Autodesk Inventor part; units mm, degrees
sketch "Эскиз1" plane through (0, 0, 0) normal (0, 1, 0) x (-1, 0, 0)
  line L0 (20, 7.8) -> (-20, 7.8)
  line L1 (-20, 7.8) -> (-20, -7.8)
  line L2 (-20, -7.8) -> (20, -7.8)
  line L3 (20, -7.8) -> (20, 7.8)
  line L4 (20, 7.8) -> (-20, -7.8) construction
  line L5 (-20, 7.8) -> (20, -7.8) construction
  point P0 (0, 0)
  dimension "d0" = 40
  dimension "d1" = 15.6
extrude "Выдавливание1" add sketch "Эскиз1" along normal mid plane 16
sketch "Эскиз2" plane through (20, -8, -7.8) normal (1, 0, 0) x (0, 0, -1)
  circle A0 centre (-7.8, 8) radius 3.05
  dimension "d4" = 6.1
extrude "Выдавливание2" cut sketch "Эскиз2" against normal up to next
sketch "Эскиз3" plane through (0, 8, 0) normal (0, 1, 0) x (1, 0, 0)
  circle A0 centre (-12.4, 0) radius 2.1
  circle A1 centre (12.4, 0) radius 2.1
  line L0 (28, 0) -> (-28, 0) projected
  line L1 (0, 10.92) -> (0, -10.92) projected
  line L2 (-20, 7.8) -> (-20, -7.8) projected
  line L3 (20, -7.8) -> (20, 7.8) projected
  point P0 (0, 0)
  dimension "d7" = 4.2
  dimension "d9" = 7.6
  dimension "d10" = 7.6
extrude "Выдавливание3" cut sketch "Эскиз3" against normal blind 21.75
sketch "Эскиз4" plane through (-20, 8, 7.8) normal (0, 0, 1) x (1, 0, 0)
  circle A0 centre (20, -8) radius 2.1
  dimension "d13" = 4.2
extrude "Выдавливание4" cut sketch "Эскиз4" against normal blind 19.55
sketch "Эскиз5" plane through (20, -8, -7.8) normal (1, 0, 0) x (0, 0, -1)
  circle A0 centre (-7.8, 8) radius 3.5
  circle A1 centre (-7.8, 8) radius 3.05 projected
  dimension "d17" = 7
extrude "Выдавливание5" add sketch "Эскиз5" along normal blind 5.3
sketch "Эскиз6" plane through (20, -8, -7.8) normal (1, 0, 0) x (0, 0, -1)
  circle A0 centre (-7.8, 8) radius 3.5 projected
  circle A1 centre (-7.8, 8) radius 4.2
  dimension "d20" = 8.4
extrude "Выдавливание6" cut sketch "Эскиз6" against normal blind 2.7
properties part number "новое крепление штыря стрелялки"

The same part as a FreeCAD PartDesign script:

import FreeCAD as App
import Part
import Sketcher
from FreeCAD import Vector
Q = App.Units.Quantity

doc = App.newDocument("Part")
params = doc.addObject("Spreadsheet::Sheet", "Params")
for row, (alias, value) in enumerate([
    ("sketch1_width", "40 mm"),
    ("sketch1_height", "15.6 mm"),
    ("pad1_length", "16 mm"),
    ("sketch2_diameter", "6.1 mm"),
    ("sketch3_diameter", "4.2 mm"),
    ("pocket2_length", "21.75 mm"),
    ("sketch4_diameter", "4.2 mm"),
    ("pocket3_length", "19.55 mm"),
    ("sketch5_diameter", "7 mm"),
    ("sketch5_diameter2", "6.1 mm"),
    ("pad2_length", "5.3 mm"),
    ("sketch6_diameter", "8.4 mm"),
    ("sketch6_diameter2", "7 mm"),
    ("pocket4_length", "2.7 mm"),
], start=1):
    params.set(f"A{row}", alias)
    params.set(f"B{row}", "=" + value)
    params.setAlias(f"B{row}", alias)

body = doc.addObject("PartDesign::Body", "Body")

sketch1 = body.newObject("Sketcher::SketchObject", "Sketch")
sketch1.AttachmentSupport = (doc.getObject("XZ_Plane"), [""])
sketch1.MapMode = "FlatFace"
sketch1.addGeometry(Part.LineSegment(Vector(-20, -7.8, 0), Vector(-20, 7.8, 0)), False)
sketch1.addGeometry(Part.LineSegment(Vector(-20, 7.8, 0), Vector(20, 7.8, 0)), False)
sketch1.addGeometry(Part.LineSegment(Vector(20, 7.8, 0), Vector(20, -7.8, 0)), False)
sketch1.addGeometry(Part.LineSegment(Vector(20, -7.8, 0), Vector(-20, -7.8, 0)), False)
sketch1.addConstraint(Sketcher.Constraint("Coincident", 0, 2, 1, 1))
sketch1.addConstraint(Sketcher.Constraint("Coincident", 1, 2, 2, 1))
sketch1.addConstraint(Sketcher.Constraint("Coincident", 2, 2, 3, 1))
sketch1.addConstraint(Sketcher.Constraint("Coincident", 3, 2, 0, 1))
sketch1.addConstraint(Sketcher.Constraint("Vertical", 0))
sketch1.addConstraint(Sketcher.Constraint("Horizontal", 1))
sketch1.addConstraint(Sketcher.Constraint("Vertical", 2))
sketch1.addConstraint(Sketcher.Constraint("Horizontal", 3))
sketch1.addConstraint(Sketcher.Constraint("Symmetric", 0, 2, 2, 2, -1, 1))
sketch1.addConstraint(Sketcher.Constraint("DistanceX", 1, 1, 1, 2, Q("40 mm")))
sketch1.addConstraint(Sketcher.Constraint("DistanceY", 0, 1, 0, 2, Q("15.6 mm")))
sketch1.setExpression("Constraints[9]", "Params.sketch1_width")
sketch1.setExpression("Constraints[10]", "Params.sketch1_height")
pad1 = body.newObject("PartDesign::Pad", "Pad")
pad1.Profile = sketch1
pad1.setExpression("Length", "Params.pad1_length")
pad1.Midplane = True

sketch2 = body.newObject("Sketcher::SketchObject", "Sketch001")
sketch2.AttachmentSupport = (doc.getObject("YZ_Plane"), [""])
sketch2.MapMode = "FlatFace"
sketch2.AttachmentOffset = App.Placement(Vector(0, 0, 20), App.Rotation())
sketch2.addGeometry(Part.Circle(Vector(0, 0, 0), Vector(0, 0, 1), 3.05), False)
sketch2.addConstraint(Sketcher.Constraint("Coincident", 0, 3, -1, 1))
sketch2.addConstraint(Sketcher.Constraint("Diameter", 0, Q("6.1 mm")))
sketch2.setExpression("Constraints[1]", "Params.sketch2_diameter")
pocket1 = body.newObject("PartDesign::Pocket", "Pocket")
pocket1.Profile = sketch2
pocket1.Type = "UpToFirst"

sketch3 = body.newObject("Sketcher::SketchObject", "Sketch002")
sketch3.AttachmentSupport = (doc.getObject("XZ_Plane"), [""])
sketch3.MapMode = "FlatFace"
sketch3.AttachmentOffset = App.Placement(Vector(0, 0, -8), App.Rotation())
sketch3.addGeometry(Part.Circle(Vector(-12.4, 0, 0), Vector(0, 0, 1), 2.1), False)
sketch3.addGeometry(Part.Circle(Vector(12.4, 0, 0), Vector(0, 0, 1), 2.1), False)
sketch3.addConstraint(Sketcher.Constraint("Equal", 0, 1))
sketch3.addConstraint(Sketcher.Constraint("Symmetric", 0, 3, 1, 3, -1, 1))
sketch3.addConstraint(Sketcher.Constraint("PointOnObject", 0, 3, -1))
sketch3.addConstraint(Sketcher.Constraint("Diameter", 0, Q("4.2 mm")))
sketch3.addConstraint(Sketcher.Constraint("DistanceX", 0, 3, -1, 1, Q("12.4 mm")))
sketch3.setExpression("Constraints[3]", "Params.sketch3_diameter")
pocket2 = body.newObject("PartDesign::Pocket", "Pocket001")
pocket2.Profile = sketch3
pocket2.setExpression("Length", "Params.pocket2_length")
pocket2.Reversed = True

sketch4 = body.newObject("Sketcher::SketchObject", "Sketch003")
sketch4.AttachmentSupport = (doc.getObject("XY_Plane"), [""])
sketch4.MapMode = "FlatFace"
sketch4.AttachmentOffset = App.Placement(Vector(0, 0, 7.8), App.Rotation())
sketch4.addGeometry(Part.Circle(Vector(0, 0, 0), Vector(0, 0, 1), 2.1), False)
sketch4.addConstraint(Sketcher.Constraint("Coincident", 0, 3, -1, 1))
sketch4.addConstraint(Sketcher.Constraint("Diameter", 0, Q("4.2 mm")))
sketch4.setExpression("Constraints[1]", "Params.sketch4_diameter")
pocket3 = body.newObject("PartDesign::Pocket", "Pocket002")
pocket3.Profile = sketch4
pocket3.setExpression("Length", "Params.pocket3_length")

sketch5 = body.newObject("Sketcher::SketchObject", "Sketch004")
sketch5.AttachmentSupport = (doc.getObject("YZ_Plane"), [""])
sketch5.MapMode = "FlatFace"
sketch5.AttachmentOffset = App.Placement(Vector(0, 0, 20), App.Rotation())
sketch5.addGeometry(Part.Circle(Vector(0, 0, 0), Vector(0, 0, 1), 3.5), False)
sketch5.addGeometry(Part.Circle(Vector(0, 0, 0), Vector(0, 0, 1), 3.05), False)
sketch5.addConstraint(Sketcher.Constraint("Coincident", 0, 3, -1, 1))
sketch5.addConstraint(Sketcher.Constraint("Coincident", 1, 3, -1, 1))
sketch5.addConstraint(Sketcher.Constraint("Diameter", 0, Q("7 mm")))
sketch5.addConstraint(Sketcher.Constraint("Diameter", 1, Q("6.1 mm")))
sketch5.setExpression("Constraints[2]", "Params.sketch5_diameter")
sketch5.setExpression("Constraints[3]", "Params.sketch5_diameter2")
pad2 = body.newObject("PartDesign::Pad", "Pad001")
pad2.Profile = sketch5
pad2.setExpression("Length", "Params.pad2_length")

sketch6 = body.newObject("Sketcher::SketchObject", "Sketch005")
sketch6.AttachmentSupport = (doc.getObject("YZ_Plane"), [""])
sketch6.MapMode = "FlatFace"
sketch6.AttachmentOffset = App.Placement(Vector(0, 0, 20), App.Rotation())
sketch6.addGeometry(Part.Circle(Vector(0, 0, 0), Vector(0, 0, 1), 4.2), False)
sketch6.addGeometry(Part.Circle(Vector(0, 0, 0), Vector(0, 0, 1), 3.5), False)
sketch6.addConstraint(Sketcher.Constraint("Coincident", 0, 3, -1, 1))
sketch6.addConstraint(Sketcher.Constraint("Coincident", 1, 3, -1, 1))
sketch6.addConstraint(Sketcher.Constraint("Diameter", 0, Q("8.4 mm")))
sketch6.addConstraint(Sketcher.Constraint("Diameter", 1, Q("7 mm")))
sketch6.setExpression("Constraints[2]", "Params.sketch6_diameter")
sketch6.setExpression("Constraints[3]", "Params.sketch6_diameter2")
pocket4 = body.newObject("PartDesign::Pocket", "Pocket003")
pocket4.Profile = sketch6
pocket4.setExpression("Length", "Params.pocket4_length")

doc.recompute()
